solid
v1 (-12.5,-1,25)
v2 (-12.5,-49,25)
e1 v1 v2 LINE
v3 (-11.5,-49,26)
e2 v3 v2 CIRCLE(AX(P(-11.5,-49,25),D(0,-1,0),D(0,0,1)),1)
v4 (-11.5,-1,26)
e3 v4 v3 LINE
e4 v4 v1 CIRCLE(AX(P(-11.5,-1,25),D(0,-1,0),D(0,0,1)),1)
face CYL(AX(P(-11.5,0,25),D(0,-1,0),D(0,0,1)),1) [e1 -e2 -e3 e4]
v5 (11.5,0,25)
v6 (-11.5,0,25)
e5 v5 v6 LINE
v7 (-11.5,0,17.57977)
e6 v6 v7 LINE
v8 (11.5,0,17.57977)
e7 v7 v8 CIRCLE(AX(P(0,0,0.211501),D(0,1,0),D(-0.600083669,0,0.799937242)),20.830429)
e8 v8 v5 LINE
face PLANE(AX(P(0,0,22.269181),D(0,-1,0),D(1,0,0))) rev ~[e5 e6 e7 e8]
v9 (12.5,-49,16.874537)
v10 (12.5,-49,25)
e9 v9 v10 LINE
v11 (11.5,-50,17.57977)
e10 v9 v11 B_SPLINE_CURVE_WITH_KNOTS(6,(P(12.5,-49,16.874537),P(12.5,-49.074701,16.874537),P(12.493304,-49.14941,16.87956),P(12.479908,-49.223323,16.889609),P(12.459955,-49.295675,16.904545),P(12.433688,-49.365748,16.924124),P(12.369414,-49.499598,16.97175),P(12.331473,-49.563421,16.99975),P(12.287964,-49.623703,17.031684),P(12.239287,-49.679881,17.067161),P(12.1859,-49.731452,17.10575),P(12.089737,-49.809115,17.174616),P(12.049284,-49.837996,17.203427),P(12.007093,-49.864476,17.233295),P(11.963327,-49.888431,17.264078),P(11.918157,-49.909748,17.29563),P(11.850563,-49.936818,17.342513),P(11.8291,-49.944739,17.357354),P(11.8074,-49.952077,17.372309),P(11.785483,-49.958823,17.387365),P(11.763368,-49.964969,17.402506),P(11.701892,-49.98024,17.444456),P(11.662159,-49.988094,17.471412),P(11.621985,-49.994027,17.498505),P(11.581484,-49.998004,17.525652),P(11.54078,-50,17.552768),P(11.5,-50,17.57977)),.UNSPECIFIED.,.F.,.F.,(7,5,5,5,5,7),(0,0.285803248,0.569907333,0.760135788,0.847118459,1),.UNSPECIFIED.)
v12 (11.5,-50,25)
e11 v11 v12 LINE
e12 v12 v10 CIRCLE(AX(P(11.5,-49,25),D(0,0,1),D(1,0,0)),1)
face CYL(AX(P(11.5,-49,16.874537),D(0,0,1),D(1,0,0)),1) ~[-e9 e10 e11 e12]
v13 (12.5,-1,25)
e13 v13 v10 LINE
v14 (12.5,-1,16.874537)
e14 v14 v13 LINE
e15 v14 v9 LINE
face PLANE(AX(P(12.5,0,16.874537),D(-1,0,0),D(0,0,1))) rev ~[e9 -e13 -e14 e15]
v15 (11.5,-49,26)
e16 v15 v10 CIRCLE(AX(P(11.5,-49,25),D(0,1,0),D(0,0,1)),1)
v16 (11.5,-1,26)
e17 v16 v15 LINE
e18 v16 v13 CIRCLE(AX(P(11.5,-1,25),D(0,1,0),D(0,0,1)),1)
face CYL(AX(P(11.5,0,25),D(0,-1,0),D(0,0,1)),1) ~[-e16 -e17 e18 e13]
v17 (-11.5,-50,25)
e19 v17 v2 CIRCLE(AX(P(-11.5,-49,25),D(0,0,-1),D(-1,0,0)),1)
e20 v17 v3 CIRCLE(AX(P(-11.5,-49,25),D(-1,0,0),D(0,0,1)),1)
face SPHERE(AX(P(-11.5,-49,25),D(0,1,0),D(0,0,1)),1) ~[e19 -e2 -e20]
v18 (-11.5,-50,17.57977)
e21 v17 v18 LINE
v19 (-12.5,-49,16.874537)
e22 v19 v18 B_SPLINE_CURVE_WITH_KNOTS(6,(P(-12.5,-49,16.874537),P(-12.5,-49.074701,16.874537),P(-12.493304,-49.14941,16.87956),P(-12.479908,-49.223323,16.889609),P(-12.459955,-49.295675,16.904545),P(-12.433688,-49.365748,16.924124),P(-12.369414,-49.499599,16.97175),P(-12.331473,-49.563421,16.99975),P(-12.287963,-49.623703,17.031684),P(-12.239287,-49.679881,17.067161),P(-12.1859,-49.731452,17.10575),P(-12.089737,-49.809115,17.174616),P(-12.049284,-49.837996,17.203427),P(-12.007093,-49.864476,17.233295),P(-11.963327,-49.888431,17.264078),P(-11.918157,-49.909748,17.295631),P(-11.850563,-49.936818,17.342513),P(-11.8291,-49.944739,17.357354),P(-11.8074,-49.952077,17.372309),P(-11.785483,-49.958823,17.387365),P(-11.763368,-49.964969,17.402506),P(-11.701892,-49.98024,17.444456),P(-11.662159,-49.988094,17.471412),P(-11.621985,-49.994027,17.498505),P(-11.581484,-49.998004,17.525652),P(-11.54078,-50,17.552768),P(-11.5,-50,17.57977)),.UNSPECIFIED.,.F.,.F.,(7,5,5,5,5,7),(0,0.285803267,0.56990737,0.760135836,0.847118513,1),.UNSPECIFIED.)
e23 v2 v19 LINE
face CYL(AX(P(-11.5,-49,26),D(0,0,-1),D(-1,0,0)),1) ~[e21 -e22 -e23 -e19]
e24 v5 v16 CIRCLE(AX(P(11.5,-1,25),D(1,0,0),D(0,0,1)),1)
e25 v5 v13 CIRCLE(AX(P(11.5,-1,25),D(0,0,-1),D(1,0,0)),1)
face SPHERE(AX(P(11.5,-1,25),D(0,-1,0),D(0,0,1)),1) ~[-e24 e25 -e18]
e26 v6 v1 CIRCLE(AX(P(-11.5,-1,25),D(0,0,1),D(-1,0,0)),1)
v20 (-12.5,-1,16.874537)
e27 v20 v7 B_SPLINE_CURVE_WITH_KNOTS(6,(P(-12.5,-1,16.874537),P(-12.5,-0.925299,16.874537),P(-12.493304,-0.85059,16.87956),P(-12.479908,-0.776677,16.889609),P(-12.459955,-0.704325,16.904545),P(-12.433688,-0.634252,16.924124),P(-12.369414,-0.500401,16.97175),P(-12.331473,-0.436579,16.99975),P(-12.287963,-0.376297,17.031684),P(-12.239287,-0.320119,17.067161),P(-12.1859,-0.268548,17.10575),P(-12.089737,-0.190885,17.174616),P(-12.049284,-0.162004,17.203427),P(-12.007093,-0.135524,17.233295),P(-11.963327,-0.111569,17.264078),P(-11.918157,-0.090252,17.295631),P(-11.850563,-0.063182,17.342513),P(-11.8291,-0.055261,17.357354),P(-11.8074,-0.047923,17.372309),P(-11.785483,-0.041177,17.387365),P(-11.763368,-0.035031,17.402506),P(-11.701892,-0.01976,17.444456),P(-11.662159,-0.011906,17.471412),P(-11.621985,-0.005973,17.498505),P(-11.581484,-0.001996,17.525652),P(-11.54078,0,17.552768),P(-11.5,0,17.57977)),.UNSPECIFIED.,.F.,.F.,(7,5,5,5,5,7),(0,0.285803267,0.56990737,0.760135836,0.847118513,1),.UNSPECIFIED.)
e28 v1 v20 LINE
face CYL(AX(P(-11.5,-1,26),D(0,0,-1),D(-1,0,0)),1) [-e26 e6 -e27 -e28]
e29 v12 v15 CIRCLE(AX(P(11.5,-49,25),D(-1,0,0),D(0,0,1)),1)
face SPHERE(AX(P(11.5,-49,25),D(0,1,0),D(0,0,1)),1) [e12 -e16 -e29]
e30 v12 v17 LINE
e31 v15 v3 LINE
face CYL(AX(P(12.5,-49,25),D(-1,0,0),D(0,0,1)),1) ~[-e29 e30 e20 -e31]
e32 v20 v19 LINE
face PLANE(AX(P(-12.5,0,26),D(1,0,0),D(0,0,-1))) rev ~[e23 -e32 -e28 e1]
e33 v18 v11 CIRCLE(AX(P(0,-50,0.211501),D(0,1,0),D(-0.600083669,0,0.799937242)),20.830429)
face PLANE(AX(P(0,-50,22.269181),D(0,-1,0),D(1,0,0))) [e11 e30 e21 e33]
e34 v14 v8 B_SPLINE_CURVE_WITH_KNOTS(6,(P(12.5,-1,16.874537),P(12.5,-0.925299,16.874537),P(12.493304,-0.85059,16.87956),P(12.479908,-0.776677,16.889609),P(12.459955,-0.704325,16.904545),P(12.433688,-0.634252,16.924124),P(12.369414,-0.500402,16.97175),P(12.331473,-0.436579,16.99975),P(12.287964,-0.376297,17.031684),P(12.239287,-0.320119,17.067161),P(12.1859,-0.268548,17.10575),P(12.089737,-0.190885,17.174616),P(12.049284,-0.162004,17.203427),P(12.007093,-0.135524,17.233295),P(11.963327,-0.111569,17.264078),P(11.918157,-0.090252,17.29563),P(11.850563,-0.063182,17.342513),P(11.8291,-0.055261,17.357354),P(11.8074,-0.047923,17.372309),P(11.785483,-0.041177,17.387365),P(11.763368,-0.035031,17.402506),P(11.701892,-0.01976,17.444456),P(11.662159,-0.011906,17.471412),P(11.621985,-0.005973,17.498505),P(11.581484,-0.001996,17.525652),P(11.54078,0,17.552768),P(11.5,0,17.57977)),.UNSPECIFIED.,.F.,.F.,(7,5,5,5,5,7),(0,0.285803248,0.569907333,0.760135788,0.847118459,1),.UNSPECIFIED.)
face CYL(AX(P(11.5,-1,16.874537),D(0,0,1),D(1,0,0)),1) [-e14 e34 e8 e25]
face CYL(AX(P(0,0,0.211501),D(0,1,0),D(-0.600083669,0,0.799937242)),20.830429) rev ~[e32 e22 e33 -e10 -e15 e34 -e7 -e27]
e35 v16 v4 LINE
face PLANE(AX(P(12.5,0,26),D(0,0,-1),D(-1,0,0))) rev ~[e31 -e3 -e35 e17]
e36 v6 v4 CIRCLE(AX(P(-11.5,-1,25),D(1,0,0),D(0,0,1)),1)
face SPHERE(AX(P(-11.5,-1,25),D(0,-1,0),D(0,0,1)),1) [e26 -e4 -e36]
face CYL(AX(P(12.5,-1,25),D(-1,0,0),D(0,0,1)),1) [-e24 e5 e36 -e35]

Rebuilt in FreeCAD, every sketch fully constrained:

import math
import FreeCAD as App
import Part
import Sketcher
from FreeCAD import Vector
Q = App.Units.Quantity


def edges_at(feature, points):
    """Names of the edges that pass closest to the given points."""
    edges = feature.Shape.Edges
    near = lambda p: min(range(len(edges)), key=lambda i: edges[i].distToShape(Part.Vertex(*p))[0])
    return sorted({f"Edge{near(p) + 1}" for p in points})

doc = App.newDocument("Part")
body = doc.addObject("PartDesign::Body", "Body")

# Sketch on XZ plane
sketch1 = body.newObject("Sketcher::SketchObject", "Sketch")
sketch1.AttachmentSupport = (doc.getObject("XZ_Plane"), [""])
sketch1.MapMode = "FlatFace"
sketch1.addGeometry(Part.LineSegment(Vector(12, 26, 0), Vector(-12, 26, 0)), False)
sketch1.addGeometry(Part.LineSegment(Vector(-12, 26, 0), Vector(-12, 17, 0)), False)
sketch1.addGeometry(Part.ArcOfCircle(Part.Circle(Vector(0, 0, 0), Vector(0, 0, 1), 21), math.radians(53), math.radians(127)), False)
sketch1.addGeometry(Part.LineSegment(Vector(12, 17, 0), Vector(12, 26, 0)), False)
sketch1.addConstraint(Sketcher.Constraint("Coincident", 0, 2, 1, 1))
sketch1.addConstraint(Sketcher.Constraint("Coincident", 1, 2, 2, 2))
sketch1.addConstraint(Sketcher.Constraint("Coincident", 2, 1, 3, 1))
sketch1.addConstraint(Sketcher.Constraint("Coincident", 3, 2, 0, 1))
sketch1.addConstraint(Sketcher.Constraint("Horizontal", 0))
sketch1.addConstraint(Sketcher.Constraint("Vertical", 1))
sketch1.addConstraint(Sketcher.Constraint("Vertical", 3))
sketch1.addConstraint(Sketcher.Constraint("Symmetric", 1, 2, 2, 1, -2))
sketch1.addConstraint(Sketcher.Constraint("DistanceX", 0, 2, 0, 1, Q("25 mm")))
sketch1.addConstraint(Sketcher.Constraint("DistanceY", -1, 1, 0, 2, Q("26 mm")))
sketch1.addConstraint(Sketcher.Constraint("Radius", 2, Q("20.830429 mm")))
sketch1.addConstraint(Sketcher.Constraint("DistanceY", -1, 1, 2, 3, Q("0.211501 mm")))
pad1 = body.newObject("PartDesign::Pad", "Pad")
pad1.Profile = sketch1
pad1.Length = 50
doc.recompute()

fillet = body.newObject("PartDesign::Fillet", "Fillet")
fillet.Base = (pad1, edges_at(pad1, [
    (12.5, -25, 26),
    (-12.5, -25, 26),
    (0, 0, 26),
    (0, -50, 26),
    (12.5, -50, 21.437),
    (-12.5, -50, 21.437),
    (-12.5, 0, 21.437),
    (12.5, 0, 21.437),
]))
fillet.Radius = 1

doc.recompute()
